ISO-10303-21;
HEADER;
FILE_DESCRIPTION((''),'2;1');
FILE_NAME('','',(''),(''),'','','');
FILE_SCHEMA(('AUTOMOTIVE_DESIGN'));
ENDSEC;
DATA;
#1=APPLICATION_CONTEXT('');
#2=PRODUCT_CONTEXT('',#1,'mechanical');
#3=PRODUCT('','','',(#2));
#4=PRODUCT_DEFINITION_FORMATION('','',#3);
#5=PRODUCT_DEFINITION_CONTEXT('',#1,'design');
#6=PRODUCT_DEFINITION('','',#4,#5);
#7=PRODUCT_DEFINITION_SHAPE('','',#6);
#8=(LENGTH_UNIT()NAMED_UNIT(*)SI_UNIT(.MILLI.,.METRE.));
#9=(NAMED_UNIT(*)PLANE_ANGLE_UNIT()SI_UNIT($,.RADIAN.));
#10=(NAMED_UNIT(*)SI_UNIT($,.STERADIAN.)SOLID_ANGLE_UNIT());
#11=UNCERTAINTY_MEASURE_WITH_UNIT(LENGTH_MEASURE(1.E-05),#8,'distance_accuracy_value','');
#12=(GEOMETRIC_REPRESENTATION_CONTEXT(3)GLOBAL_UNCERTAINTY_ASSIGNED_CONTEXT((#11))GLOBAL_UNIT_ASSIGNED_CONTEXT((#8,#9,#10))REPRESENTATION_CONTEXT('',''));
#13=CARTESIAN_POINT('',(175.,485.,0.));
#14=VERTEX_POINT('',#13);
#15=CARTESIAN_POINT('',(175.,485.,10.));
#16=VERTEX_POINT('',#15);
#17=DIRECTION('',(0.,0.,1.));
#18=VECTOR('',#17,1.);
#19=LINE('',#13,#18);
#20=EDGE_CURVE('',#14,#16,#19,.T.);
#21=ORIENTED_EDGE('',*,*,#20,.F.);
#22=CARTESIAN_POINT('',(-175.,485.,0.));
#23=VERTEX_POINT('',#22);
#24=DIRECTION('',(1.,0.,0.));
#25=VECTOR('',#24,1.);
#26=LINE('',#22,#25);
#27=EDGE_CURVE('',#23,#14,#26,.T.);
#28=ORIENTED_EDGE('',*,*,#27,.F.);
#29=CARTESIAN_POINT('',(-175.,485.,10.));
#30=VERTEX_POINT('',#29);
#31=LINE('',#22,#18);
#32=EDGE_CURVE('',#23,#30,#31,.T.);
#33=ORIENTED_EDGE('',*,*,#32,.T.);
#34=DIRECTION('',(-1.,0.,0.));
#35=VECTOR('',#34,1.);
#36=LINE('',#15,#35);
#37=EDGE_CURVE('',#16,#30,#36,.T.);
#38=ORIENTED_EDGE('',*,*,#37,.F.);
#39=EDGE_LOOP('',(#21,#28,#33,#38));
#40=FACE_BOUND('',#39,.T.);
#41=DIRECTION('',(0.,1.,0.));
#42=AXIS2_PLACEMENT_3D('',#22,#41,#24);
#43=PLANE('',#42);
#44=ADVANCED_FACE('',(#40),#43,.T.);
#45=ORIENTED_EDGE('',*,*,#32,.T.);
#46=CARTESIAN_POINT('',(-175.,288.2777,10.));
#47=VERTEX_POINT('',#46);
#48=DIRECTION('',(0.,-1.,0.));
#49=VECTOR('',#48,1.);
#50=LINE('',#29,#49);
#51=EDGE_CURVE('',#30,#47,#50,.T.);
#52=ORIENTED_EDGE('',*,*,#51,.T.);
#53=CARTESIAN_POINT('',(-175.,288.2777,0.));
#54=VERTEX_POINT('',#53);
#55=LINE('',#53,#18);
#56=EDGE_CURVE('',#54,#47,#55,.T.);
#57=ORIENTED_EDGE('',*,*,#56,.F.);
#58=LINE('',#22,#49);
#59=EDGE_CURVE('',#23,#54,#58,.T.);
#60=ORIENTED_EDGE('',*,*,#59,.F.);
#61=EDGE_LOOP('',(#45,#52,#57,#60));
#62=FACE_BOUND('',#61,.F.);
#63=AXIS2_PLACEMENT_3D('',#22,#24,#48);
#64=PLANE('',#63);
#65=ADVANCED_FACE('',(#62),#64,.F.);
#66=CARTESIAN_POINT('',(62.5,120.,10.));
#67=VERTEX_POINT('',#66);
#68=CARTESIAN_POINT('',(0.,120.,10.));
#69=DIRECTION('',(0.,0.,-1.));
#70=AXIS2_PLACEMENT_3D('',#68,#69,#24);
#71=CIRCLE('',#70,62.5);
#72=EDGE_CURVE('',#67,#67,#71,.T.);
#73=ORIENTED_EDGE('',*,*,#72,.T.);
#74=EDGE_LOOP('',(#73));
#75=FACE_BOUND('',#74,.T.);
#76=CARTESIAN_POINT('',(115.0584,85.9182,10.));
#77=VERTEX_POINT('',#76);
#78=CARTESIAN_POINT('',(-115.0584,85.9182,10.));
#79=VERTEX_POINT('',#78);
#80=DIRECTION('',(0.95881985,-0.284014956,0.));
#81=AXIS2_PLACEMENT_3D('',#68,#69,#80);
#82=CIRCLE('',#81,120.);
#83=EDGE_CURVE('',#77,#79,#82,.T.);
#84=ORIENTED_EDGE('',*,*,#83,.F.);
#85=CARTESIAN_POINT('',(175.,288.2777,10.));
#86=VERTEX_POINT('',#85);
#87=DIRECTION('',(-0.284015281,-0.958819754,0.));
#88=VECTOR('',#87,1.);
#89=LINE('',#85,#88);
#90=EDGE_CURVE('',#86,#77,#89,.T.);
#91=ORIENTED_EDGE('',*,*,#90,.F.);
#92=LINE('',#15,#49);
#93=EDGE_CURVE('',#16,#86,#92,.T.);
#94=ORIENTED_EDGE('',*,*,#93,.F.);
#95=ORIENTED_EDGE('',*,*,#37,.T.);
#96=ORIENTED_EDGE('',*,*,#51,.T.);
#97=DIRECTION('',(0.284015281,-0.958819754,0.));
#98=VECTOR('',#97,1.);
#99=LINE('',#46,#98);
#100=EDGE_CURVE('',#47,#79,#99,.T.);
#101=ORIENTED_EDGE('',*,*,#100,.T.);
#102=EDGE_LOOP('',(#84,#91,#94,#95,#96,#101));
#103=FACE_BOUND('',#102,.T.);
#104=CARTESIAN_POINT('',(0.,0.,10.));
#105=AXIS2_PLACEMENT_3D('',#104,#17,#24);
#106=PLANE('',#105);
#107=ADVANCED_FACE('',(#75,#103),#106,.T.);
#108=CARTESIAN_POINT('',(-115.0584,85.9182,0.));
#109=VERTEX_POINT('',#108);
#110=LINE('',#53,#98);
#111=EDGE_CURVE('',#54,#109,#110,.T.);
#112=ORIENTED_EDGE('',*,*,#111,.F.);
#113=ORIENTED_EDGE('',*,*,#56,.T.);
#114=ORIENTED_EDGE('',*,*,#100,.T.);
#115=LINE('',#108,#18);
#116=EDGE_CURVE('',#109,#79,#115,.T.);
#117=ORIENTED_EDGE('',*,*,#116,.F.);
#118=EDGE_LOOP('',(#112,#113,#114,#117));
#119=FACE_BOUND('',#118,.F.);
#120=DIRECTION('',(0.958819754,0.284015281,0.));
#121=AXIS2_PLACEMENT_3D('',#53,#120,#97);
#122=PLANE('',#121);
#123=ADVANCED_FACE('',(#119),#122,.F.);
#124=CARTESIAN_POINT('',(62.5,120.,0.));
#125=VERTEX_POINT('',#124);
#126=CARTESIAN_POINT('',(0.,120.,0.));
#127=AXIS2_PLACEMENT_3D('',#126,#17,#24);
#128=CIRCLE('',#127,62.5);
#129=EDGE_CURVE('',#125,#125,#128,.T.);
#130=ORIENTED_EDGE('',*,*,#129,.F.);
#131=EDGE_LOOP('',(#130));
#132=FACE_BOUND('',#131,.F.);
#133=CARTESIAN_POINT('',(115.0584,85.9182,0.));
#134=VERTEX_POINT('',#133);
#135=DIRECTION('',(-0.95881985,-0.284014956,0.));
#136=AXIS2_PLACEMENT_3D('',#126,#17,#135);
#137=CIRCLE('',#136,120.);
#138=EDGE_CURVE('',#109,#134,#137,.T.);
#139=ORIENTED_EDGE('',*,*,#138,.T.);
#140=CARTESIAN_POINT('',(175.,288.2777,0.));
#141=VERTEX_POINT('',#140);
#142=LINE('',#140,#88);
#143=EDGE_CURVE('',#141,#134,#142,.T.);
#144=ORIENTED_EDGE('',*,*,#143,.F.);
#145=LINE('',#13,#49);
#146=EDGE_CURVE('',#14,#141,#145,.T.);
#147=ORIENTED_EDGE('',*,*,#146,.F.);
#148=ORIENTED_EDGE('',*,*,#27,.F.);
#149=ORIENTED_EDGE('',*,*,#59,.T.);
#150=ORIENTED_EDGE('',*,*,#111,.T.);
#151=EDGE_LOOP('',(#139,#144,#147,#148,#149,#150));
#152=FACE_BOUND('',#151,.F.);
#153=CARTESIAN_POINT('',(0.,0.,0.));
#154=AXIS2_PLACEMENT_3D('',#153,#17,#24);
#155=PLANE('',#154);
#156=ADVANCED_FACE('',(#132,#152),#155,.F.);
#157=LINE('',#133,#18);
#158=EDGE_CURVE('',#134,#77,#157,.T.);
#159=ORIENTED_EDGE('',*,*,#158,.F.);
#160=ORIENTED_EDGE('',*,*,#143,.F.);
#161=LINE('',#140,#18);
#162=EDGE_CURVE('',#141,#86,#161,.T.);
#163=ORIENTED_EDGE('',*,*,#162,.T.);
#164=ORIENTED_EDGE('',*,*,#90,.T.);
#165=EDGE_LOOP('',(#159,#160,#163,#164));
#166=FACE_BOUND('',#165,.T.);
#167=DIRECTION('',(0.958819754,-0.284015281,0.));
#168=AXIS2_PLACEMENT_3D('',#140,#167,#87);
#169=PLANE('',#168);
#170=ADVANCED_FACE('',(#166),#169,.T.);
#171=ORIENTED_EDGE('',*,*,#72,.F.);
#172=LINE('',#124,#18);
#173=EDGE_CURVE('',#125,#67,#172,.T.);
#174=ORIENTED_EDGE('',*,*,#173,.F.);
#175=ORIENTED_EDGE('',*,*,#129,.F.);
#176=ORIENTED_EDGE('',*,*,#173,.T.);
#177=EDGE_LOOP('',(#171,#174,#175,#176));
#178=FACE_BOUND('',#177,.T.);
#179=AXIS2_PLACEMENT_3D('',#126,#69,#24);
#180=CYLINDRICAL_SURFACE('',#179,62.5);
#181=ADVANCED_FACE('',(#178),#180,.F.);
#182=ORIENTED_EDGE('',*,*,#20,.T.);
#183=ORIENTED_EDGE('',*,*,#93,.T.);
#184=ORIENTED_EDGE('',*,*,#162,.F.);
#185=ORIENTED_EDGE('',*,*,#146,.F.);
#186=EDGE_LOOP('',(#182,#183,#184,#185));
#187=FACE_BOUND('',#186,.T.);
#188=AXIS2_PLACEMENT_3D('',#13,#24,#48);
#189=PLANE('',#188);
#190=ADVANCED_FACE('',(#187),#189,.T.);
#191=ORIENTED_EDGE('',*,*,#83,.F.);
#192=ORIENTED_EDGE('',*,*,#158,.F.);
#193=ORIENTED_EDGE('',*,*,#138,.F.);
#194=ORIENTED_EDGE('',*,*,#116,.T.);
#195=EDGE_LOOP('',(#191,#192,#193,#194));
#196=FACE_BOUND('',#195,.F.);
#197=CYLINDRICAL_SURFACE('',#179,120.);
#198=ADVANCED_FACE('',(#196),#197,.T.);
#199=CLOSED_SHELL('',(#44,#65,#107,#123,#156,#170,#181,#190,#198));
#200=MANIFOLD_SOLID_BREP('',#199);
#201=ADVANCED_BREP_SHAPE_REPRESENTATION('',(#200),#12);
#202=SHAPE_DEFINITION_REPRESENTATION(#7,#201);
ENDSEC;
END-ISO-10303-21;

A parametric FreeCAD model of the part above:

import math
import FreeCAD as App
import Part
import Sketcher
from FreeCAD import Vector

doc = App.newDocument("Part")
body = doc.addObject("PartDesign::Body", "Body")

# Sketch on XY plane
sketch1 = doc.addObject("Sketcher::SketchObject", "Sketch")
body.addObject(sketch1)
sketch1.AttachmentSupport = (doc.XY_Plane, [""])
sketch1.MapMode = "FlatFace"
sketch1.addGeometry(Part.ArcOfCircle(Part.Circle(Vector(0, 120, 0), Vector(0, 0, 1), 120), math.radians(-164), math.radians(-16)), False)
sketch1.addGeometry(Part.LineSegment(Vector(115, 86, 0), Vector(175, 288, 0)), False)
sketch1.addGeometry(Part.LineSegment(Vector(175, 288, 0), Vector(175, 485, 0)), False)
sketch1.addGeometry(Part.LineSegment(Vector(175, 485, 0), Vector(-175, 485, 0)), False)
sketch1.addGeometry(Part.LineSegment(Vector(-175, 485, 0), Vector(-175, 288, 0)), False)
sketch1.addGeometry(Part.LineSegment(Vector(-175, 288, 0), Vector(-115, 86, 0)), False)
sketch1.addGeometry(Part.Circle(Vector(0, 120, 0), Vector(0, 0, 1), 62), False)
sketch1.addConstraint(Sketcher.Constraint("Tangent", 0, 2, 1, 1))
sketch1.addConstraint(Sketcher.Constraint("Coincident", 1, 2, 2, 1))
sketch1.addConstraint(Sketcher.Constraint("Coincident", 2, 2, 3, 1))
sketch1.addConstraint(Sketcher.Constraint("Coincident", 3, 2, 4, 1))
sketch1.addConstraint(Sketcher.Constraint("Coincident", 4, 2, 5, 1))
sketch1.addConstraint(Sketcher.Constraint("Tangent", 5, 2, 0, 1))
sketch1.addConstraint(Sketcher.Constraint("Vertical", 2))
sketch1.addConstraint(Sketcher.Constraint("Horizontal", 3))
sketch1.addConstraint(Sketcher.Constraint("Vertical", 4))
sketch1.addConstraint(Sketcher.Constraint("Coincident", 6, 3, 0, 3))
sketch1.addConstraint(Sketcher.Constraint("Symmetric", 1, 2, 4, 2, -2))
sketch1.addConstraint(Sketcher.Constraint("PointOnObject", 0, 3, -2))
sketch1.addConstraint(Sketcher.Constraint("Diameter", 6, 125.0))
sketch1.addConstraint(Sketcher.Constraint("Radius", 0, 120.0))
sketch1.addConstraint(Sketcher.Constraint("DistanceX", 3, 2, 3, 1, 350.0))
sketch1.addConstraint(Sketcher.Constraint("DistanceY", -1, 1, 2, 2, 485.0))
sketch1.addConstraint(Sketcher.Constraint("DistanceY", 2, 1, 2, 2, 196.7223))
sketch1.addConstraint(Sketcher.Constraint("DistanceY", -1, 1, 0, 3, 120.0))
pad1 = doc.addObject("PartDesign::Pad", "Pad")
body.addObject(pad1)
pad1.Profile = sketch1
pad1.Length = 10

doc.recompute()
